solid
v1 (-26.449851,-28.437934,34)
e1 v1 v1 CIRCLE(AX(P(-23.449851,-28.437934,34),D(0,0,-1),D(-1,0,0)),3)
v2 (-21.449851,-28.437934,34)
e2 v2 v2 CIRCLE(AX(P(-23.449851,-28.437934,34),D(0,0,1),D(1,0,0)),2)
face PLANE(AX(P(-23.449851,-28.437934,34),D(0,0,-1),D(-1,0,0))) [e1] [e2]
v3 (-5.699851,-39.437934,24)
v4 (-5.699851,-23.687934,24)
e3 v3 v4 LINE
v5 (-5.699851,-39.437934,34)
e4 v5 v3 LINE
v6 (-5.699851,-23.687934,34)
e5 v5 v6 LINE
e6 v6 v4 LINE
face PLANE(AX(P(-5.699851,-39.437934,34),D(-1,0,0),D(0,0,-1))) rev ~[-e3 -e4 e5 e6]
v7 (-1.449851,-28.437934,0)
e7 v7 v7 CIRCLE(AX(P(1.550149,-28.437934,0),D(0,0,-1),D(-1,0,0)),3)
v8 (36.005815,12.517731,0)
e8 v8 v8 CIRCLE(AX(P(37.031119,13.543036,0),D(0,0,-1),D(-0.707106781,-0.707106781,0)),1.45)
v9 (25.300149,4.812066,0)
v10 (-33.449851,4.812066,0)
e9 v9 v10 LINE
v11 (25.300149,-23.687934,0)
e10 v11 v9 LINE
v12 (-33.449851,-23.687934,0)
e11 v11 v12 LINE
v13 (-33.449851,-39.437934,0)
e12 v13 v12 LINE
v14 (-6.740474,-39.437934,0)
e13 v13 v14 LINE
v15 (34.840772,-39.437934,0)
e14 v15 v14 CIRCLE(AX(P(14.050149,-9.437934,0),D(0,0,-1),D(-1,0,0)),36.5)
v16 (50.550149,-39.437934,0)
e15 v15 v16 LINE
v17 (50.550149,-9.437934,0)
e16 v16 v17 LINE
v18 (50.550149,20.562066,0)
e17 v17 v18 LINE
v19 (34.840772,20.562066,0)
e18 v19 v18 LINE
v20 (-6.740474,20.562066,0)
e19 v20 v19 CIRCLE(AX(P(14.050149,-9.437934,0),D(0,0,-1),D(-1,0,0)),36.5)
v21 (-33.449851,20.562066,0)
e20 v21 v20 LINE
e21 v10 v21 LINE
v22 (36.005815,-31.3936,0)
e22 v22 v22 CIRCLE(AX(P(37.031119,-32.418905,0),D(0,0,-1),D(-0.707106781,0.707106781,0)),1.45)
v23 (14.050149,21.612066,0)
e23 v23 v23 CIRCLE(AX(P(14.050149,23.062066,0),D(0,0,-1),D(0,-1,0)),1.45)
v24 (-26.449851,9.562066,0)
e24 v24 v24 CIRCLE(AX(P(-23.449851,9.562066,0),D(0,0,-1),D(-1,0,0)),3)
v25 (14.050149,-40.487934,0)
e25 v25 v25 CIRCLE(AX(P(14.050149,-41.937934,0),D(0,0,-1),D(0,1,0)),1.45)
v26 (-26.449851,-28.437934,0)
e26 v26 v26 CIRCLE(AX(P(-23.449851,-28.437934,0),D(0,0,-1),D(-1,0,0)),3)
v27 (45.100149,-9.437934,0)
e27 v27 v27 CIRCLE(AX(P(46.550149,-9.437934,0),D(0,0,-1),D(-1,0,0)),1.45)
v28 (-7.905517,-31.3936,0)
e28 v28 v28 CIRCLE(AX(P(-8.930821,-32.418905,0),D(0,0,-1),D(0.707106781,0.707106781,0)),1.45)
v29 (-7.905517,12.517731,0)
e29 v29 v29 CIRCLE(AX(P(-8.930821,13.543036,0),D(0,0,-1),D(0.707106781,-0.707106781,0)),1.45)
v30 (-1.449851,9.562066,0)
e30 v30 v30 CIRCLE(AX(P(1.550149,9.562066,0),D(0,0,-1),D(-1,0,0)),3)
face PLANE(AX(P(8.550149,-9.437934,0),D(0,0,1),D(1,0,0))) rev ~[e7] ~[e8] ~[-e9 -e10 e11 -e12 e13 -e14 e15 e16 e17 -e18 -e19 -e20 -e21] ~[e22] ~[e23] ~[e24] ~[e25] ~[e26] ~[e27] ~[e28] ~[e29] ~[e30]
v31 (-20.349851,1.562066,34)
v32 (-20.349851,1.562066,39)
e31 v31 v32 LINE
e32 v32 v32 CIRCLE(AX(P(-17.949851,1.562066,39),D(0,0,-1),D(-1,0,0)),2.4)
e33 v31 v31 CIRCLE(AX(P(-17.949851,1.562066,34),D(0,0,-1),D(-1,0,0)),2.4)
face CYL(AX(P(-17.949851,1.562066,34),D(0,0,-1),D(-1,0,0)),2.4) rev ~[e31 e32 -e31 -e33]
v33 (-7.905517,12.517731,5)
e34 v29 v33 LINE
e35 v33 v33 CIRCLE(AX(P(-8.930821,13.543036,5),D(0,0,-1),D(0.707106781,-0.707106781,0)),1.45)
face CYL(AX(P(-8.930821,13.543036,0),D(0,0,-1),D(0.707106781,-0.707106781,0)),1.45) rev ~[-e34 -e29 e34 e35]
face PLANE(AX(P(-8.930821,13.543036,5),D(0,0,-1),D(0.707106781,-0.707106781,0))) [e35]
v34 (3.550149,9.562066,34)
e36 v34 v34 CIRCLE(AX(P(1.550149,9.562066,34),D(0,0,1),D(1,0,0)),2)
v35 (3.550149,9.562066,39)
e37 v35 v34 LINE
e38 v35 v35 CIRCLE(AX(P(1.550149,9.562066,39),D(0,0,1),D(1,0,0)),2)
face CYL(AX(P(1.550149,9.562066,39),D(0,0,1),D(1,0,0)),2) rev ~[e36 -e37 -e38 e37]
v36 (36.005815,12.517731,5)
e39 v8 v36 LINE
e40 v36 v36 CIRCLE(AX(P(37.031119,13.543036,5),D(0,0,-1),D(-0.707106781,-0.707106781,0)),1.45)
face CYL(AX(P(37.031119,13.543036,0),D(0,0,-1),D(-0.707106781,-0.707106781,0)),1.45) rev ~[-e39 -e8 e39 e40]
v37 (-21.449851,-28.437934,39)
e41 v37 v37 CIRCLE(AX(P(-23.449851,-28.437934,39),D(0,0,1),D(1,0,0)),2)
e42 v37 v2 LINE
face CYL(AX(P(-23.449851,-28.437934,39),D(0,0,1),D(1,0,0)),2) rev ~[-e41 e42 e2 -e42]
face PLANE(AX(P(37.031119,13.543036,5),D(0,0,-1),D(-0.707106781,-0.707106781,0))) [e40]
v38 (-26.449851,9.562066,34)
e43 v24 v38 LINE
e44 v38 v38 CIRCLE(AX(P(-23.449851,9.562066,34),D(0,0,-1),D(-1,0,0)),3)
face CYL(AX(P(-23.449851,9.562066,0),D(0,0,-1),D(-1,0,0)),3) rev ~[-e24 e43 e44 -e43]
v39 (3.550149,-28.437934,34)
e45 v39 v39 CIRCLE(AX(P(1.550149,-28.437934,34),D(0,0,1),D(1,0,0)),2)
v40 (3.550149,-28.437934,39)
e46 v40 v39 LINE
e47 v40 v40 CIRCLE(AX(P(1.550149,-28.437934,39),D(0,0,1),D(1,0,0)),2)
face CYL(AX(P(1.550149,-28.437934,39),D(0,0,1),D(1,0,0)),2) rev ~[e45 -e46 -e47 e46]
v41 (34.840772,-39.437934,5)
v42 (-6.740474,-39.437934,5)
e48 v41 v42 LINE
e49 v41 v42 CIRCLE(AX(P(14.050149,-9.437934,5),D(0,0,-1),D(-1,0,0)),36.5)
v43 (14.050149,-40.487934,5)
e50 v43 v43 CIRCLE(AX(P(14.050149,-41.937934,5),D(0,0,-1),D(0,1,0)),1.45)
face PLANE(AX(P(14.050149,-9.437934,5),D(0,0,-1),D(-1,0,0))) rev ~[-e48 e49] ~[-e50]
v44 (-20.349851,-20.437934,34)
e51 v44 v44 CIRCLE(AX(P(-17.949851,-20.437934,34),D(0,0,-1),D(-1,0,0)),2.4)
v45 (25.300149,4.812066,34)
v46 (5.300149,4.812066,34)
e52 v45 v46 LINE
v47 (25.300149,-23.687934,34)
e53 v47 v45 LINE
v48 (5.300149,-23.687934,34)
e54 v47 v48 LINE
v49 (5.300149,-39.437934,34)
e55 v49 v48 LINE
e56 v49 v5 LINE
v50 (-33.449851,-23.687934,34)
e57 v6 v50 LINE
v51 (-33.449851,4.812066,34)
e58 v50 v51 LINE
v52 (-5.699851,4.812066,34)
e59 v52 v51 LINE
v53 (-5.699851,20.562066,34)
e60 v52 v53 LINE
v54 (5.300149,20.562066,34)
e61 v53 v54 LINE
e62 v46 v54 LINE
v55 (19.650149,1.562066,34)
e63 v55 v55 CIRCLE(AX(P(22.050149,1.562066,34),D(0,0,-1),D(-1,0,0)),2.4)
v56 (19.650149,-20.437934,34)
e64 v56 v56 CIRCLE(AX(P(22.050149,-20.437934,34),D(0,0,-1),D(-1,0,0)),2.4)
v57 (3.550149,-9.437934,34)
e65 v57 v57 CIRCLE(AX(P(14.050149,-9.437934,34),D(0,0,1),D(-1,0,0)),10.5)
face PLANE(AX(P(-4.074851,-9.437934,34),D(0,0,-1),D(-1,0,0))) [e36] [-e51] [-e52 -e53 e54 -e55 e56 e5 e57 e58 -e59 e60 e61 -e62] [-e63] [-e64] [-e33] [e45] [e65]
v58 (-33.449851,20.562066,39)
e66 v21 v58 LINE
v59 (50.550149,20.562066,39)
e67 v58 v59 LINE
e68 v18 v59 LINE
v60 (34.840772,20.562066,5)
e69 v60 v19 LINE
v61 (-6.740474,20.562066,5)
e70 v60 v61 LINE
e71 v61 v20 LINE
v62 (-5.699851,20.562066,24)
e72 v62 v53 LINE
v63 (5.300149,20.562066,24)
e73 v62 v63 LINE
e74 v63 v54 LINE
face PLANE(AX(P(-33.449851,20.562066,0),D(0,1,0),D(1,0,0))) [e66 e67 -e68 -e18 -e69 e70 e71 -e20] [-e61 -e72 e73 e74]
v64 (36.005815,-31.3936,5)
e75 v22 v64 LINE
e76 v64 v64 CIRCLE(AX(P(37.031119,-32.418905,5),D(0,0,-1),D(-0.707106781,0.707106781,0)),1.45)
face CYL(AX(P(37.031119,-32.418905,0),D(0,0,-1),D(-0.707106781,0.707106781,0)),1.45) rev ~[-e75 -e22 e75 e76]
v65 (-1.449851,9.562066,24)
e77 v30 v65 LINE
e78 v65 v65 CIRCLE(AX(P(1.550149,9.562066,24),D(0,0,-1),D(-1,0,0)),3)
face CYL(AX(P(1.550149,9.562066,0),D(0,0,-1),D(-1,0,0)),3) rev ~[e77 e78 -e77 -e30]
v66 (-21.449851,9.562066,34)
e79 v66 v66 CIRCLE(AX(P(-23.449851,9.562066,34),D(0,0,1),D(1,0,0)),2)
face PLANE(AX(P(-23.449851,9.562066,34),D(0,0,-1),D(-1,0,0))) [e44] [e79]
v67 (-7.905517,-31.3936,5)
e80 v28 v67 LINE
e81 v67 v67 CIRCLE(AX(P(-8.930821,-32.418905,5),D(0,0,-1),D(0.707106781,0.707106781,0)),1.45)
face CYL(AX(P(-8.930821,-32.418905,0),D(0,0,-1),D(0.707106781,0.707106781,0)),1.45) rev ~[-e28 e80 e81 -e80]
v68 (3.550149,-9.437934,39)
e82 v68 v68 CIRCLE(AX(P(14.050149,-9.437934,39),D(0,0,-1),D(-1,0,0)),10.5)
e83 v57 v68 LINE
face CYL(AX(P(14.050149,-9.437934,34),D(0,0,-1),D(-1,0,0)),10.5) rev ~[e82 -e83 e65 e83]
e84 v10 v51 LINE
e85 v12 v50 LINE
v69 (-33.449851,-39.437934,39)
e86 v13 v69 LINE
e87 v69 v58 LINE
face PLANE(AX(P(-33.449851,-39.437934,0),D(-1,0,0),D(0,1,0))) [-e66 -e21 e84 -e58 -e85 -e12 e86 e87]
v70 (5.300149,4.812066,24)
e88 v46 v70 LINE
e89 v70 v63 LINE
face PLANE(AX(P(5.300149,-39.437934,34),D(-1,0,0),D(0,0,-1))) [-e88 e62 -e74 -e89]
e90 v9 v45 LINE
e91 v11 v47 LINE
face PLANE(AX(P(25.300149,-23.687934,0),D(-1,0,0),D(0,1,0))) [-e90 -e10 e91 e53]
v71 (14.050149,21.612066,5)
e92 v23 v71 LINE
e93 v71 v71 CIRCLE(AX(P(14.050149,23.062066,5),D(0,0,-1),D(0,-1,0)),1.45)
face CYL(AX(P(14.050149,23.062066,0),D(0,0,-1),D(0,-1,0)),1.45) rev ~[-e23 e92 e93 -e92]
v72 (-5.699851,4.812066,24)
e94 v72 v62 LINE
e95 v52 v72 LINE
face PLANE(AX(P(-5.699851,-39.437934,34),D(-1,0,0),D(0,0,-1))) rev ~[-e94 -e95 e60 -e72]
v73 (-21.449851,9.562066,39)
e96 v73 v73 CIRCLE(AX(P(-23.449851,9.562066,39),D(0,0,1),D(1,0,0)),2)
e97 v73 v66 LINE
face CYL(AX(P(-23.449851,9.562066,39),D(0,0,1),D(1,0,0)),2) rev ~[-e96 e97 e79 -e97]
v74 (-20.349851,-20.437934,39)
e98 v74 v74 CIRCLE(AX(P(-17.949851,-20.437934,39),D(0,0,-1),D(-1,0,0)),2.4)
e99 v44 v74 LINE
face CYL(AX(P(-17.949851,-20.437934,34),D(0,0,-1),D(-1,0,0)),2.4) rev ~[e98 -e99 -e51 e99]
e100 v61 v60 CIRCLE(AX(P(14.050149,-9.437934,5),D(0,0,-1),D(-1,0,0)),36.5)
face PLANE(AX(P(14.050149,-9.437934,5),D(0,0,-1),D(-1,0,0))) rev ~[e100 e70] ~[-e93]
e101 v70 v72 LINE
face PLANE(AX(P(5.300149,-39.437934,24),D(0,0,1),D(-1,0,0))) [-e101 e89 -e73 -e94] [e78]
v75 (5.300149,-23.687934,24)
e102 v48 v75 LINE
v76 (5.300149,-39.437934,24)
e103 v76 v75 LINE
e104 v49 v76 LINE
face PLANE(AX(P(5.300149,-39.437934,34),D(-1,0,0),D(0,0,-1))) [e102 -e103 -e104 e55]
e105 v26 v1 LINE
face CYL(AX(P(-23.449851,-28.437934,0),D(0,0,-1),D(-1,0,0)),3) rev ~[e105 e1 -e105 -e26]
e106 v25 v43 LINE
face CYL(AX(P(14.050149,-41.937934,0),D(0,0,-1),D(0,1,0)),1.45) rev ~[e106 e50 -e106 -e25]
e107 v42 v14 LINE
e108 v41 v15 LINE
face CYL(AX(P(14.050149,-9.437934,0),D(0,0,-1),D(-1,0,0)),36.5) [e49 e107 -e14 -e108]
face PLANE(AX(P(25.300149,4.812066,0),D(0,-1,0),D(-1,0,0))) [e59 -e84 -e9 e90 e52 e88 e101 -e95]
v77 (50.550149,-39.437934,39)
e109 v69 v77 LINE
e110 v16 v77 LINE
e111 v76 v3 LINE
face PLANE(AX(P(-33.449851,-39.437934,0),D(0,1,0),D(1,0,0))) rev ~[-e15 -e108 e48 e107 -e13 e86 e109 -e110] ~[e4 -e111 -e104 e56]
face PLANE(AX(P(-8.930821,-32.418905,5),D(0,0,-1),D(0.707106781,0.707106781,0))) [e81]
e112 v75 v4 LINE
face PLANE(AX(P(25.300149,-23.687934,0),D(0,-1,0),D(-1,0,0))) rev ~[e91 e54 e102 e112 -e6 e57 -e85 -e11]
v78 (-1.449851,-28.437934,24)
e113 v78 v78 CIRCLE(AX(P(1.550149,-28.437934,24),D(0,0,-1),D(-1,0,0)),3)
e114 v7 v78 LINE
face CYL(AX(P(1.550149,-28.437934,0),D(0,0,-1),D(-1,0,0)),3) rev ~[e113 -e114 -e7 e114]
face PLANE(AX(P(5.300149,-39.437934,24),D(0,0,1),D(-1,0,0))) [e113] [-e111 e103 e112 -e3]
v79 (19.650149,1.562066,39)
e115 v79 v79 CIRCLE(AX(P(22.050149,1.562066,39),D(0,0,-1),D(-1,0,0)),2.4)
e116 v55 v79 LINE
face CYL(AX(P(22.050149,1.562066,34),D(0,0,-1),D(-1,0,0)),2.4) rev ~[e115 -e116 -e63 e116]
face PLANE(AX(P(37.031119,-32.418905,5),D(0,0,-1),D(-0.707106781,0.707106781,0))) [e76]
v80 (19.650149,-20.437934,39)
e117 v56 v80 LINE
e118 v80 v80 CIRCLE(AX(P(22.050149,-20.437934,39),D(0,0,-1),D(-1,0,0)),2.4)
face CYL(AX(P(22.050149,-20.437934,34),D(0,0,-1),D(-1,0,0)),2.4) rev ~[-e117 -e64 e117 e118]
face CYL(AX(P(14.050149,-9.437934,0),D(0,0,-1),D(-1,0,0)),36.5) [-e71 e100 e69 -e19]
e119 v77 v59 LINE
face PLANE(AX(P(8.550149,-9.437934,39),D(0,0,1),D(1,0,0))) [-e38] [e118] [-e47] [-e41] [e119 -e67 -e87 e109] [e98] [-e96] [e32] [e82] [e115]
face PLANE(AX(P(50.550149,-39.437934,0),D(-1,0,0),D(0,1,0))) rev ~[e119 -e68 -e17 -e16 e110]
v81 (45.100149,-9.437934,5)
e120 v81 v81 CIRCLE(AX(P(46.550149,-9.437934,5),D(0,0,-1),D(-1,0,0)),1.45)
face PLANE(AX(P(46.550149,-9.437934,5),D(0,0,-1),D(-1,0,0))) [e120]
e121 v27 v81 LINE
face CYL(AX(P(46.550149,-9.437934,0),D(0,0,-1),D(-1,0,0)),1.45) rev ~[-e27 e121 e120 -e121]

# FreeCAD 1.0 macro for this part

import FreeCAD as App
import Part
import Sketcher
Q = App.Units.Quantity


def add_polygon(sketch, points):
    """Adds a closed chain of lines whose ends are joined by coincident constraints."""
    first, n = sketch.GeometryCount, len(points)
    for a, b in zip(points, points[1:] + points[:1]):
        sketch.addGeometry(Part.LineSegment(App.Vector(*a, 0), App.Vector(*b, 0)), False)
    for i in range(n):
        sketch.addConstraint(Sketcher.Constraint("Coincident", first + i, 2, first + (i + 1) % n, 1))

doc = App.newDocument("Part")
params = doc.addObject("Spreadsheet::Sheet", "Params")
for row, (alias, value) in enumerate([
    ("sketch1_width", "84 mm"),
    ("sketch1_height", "60 mm"),
    ("pad1_length", "39 mm"),
    ("sketch2_diameter", "73 mm"),
    ("pad2_length", "5 mm"),
    ("sketch3_diameter", "2.9 mm"),
    ("pocket1_length", "5 mm"),
    ("sketch4_height", "28.5 mm"),
    ("sketch4_width", "58.75 mm"),
    ("pocket2_length", "34 mm"),
    ("sketch5_diameter", "21 mm"),
    ("sketch5_diameter2", "4.8 mm"),
    ("pocket3_length", "5 mm"),
    ("sketch6_diameter", "4 mm"),
    ("pocket4_length", "40 mm"),
    ("sketch7_diameter", "6 mm"),
    ("pocket5_length", "34 mm"),
    ("sketch8_width", "11 mm"),
    ("sketch8_height", "10 mm"),
    ("pocket6_length", "100 mm"),
], start=1):
    params.set(f"A{row}", alias)
    params.set(f"B{row}", "=" + value)
    params.setAlias(f"B{row}", alias)

body = doc.addObject("PartDesign::Body", "Body")

sketch1 = body.newObject("Sketcher::SketchObject", "Sketch")
sketch1.AttachmentSupport = (doc.getObject("XY_Plane"), [""])
sketch1.MapMode = "FlatFace"
add_polygon(sketch1, [(-33, 21), (-33, -39), (51, -39), (51, 21)])
sketch1.addConstraint(Sketcher.Constraint("Vertical", 0))
sketch1.addConstraint(Sketcher.Constraint("Horizontal", 1))
sketch1.addConstraint(Sketcher.Constraint("Vertical", 2))
sketch1.addConstraint(Sketcher.Constraint("Horizontal", 3))
sketch1.addConstraint(Sketcher.Constraint("DistanceX", 1, 1, 1, 2, Q("84 mm")))
sketch1.addConstraint(Sketcher.Constraint("DistanceY", 0, 2, 0, 1, Q("60 mm")))
sketch1.addConstraint(Sketcher.Constraint("DistanceX", 0, 2, -1, 1, Q("33.449851 mm")))
sketch1.addConstraint(Sketcher.Constraint("DistanceY", 0, 2, -1, 1, Q("39.437934 mm")))
sketch1.setExpression("Constraints[8]", "Params.sketch1_width")
sketch1.setExpression("Constraints[9]", "Params.sketch1_height")
pad1 = body.newObject("PartDesign::Pad", "Pad")
pad1.Profile = sketch1
pad1.setExpression("Length", "Params.pad1_length")

sketch2 = body.newObject("Sketcher::SketchObject", "Sketch001")
sketch2.AttachmentSupport = (doc.getObject("XY_Plane"), [""])
sketch2.MapMode = "FlatFace"
sketch2.addGeometry(Part.Circle(App.Vector(14, -9, 0), App.Vector(0, 0, 1), 36), False)
sketch2.addConstraint(Sketcher.Constraint("Diameter", 0, Q("73 mm")))
sketch2.addConstraint(Sketcher.Constraint("DistanceX", -1, 1, 0, 3, Q("14.050149 mm")))
sketch2.addConstraint(Sketcher.Constraint("DistanceY", 0, 3, -1, 1, Q("9.437934 mm")))
sketch2.setExpression("Constraints[0]", "Params.sketch2_diameter")
pad2 = body.newObject("PartDesign::Pad", "Pad001")
pad2.Profile = sketch2
pad2.setExpression("Length", "Params.pad2_length")

sketch3 = body.newObject("Sketcher::SketchObject", "Sketch002")
sketch3.AttachmentSupport = (doc.getObject("XY_Plane"), [""])
sketch3.MapMode = "FlatFace"
sketch3.addGeometry(Part.Circle(App.Vector(46.6, -9.4, 0), App.Vector(0, 0, 1), 1.4), False)
sketch3.addConstraint(Sketcher.Constraint("Diameter", 0, Q("2.9 mm")))
sketch3.addConstraint(Sketcher.Constraint("DistanceX", -1, 1, 0, 3, Q("46.550149 mm")))
sketch3.addConstraint(Sketcher.Constraint("DistanceY", 0, 3, -1, 1, Q("9.437934 mm")))
sketch3.setExpression("Constraints[0]", "Params.sketch3_diameter")
pocket1 = body.newObject("PartDesign::Pocket", "Pocket")
pocket1.Profile = sketch3
pocket1.setExpression("Length", "Params.pocket1_length")
pocket1.Reversed = True
doc.recompute()

datumline = body.newObject("PartDesign::Line", "DatumLine")
datumline.Placement = App.Placement(App.Vector(14.050149, -9.437934, 0), App.Rotation(App.Vector(0, 0, 1), App.Vector(0, 0, 1)))
polarpattern = body.newObject("PartDesign::PolarPattern", "PolarPattern")
polarpattern.Originals = [pocket1]
polarpattern.Axis = (datumline, [""])
polarpattern.Angle = 360
polarpattern.Occurrences = 8
body.Tip = polarpattern

sketch4 = body.newObject("Sketcher::SketchObject", "Sketch003")
sketch4.AttachmentSupport = (doc.getObject("XY_Plane"), [""])
sketch4.MapMode = "FlatFace"
add_polygon(sketch4, [(25, 5), (25, -24), (-33, -24), (-33, 5)])
sketch4.addConstraint(Sketcher.Constraint("Vertical", 0))
sketch4.addConstraint(Sketcher.Constraint("Horizontal", 1))
sketch4.addConstraint(Sketcher.Constraint("Vertical", 2))
sketch4.addConstraint(Sketcher.Constraint("Horizontal", 3))
sketch4.addConstraint(Sketcher.Constraint("DistanceY", 0, 2, 0, 1, Q("28.5 mm")))
sketch4.addConstraint(Sketcher.Constraint("DistanceX", 1, 2, 1, 1, Q("58.75 mm")))
sketch4.addConstraint(Sketcher.Constraint("DistanceX", -1, 1, 0, 2, Q("25.300149 mm")))
sketch4.addConstraint(Sketcher.Constraint("DistanceY", 0, 2, -1, 1, Q("23.687934 mm")))
sketch4.setExpression("Constraints[8]", "Params.sketch4_height")
sketch4.setExpression("Constraints[9]", "Params.sketch4_width")
pocket2 = body.newObject("PartDesign::Pocket", "Pocket001")
pocket2.Profile = sketch4
pocket2.setExpression("Length", "Params.pocket2_length")
pocket2.Reversed = True

sketch5 = body.newObject("Sketcher::SketchObject", "Sketch004")
sketch5.AttachmentSupport = (doc.getObject("XY_Plane"), [""])
sketch5.MapMode = "FlatFace"
sketch5.AttachmentOffset = App.Placement(App.Vector(0, 0, 34), App.Rotation())
sketch5.addGeometry(Part.Circle(App.Vector(14.1, -9.4, 0), App.Vector(0, 0, 1), 10.5), False)
sketch5.addGeometry(Part.Circle(App.Vector(22.1, 1.6, 0), App.Vector(0, 0, 1), 2.4), False)
sketch5.addGeometry(Part.Circle(App.Vector(22.1, -20.4, 0), App.Vector(0, 0, 1), 2.4), False)
sketch5.addGeometry(Part.Circle(App.Vector(-17.9, -20.4, 0), App.Vector(0, 0, 1), 2.4), False)
sketch5.addGeometry(Part.Circle(App.Vector(-17.9, 1.6, 0), App.Vector(0, 0, 1), 2.4), False)
sketch5.addConstraint(Sketcher.Constraint("Equal", 1, 2))
sketch5.addConstraint(Sketcher.Constraint("Equal", 2, 3))
sketch5.addConstraint(Sketcher.Constraint("Equal", 3, 4))
sketch5.addConstraint(Sketcher.Constraint("Horizontal", 2, 3, 3, 3))
sketch5.addConstraint(Sketcher.Constraint("Horizontal", 1, 3, 4, 3))
sketch5.addConstraint(Sketcher.Constraint("Vertical", 1, 3, 2, 3))
sketch5.addConstraint(Sketcher.Constraint("Vertical", 3, 3, 4, 3))
sketch5.addConstraint(Sketcher.Constraint("Diameter", 0, Q("21 mm")))
sketch5.addConstraint(Sketcher.Constraint("Diameter", 1, Q("4.8 mm")))
sketch5.addConstraint(Sketcher.Constraint("DistanceX", 0, 3, 1, 3, Q("8 mm")))
sketch5.addConstraint(Sketcher.Constraint("DistanceY", 0, 3, 1, 3, Q("11 mm")))
sketch5.addConstraint(Sketcher.Constraint("DistanceY", 2, 3, 0, 3, Q("11 mm")))
sketch5.addConstraint(Sketcher.Constraint("DistanceX", 3, 3, 0, 3, Q("32 mm")))
sketch5.addConstraint(Sketcher.Constraint("DistanceX", -1, 1, 0, 3, Q("14.050149 mm")))
sketch5.addConstraint(Sketcher.Constraint("DistanceY", 0, 3, -1, 1, Q("9.437934 mm")))
sketch5.setExpression("Constraints[7]", "Params.sketch5_diameter")
sketch5.setExpression("Constraints[8]", "Params.sketch5_diameter2")
pocket3 = body.newObject("PartDesign::Pocket", "Pocket002")
pocket3.Profile = sketch5
pocket3.setExpression("Length", "Params.pocket3_length")
pocket3.Reversed = True

sketch6 = body.newObject("Sketcher::SketchObject", "Sketch005")
sketch6.AttachmentSupport = (doc.getObject("XY_Plane"), [""])
sketch6.MapMode = "FlatFace"
sketch6.AttachmentOffset = App.Placement(App.Vector(0, 0, 39), App.Rotation())
sketch6.addGeometry(Part.Circle(App.Vector(-23.4, 9.6, 0), App.Vector(0, 0, 1), 2), False)
sketch6.addGeometry(Part.Circle(App.Vector(-23.4, -28.4, 0), App.Vector(0, 0, 1), 2), False)
sketch6.addGeometry(Part.Circle(App.Vector(1.6, 9.6, 0), App.Vector(0, 0, 1), 2), False)
sketch6.addGeometry(Part.Circle(App.Vector(1.6, -28.4, 0), App.Vector(0, 0, 1), 2), False)
sketch6.addConstraint(Sketcher.Constraint("Equal", 0, 1))
sketch6.addConstraint(Sketcher.Constraint("Equal", 1, 2))
sketch6.addConstraint(Sketcher.Constraint("Equal", 2, 3))
sketch6.addConstraint(Sketcher.Constraint("Horizontal", 0, 3, 2, 3))
sketch6.addConstraint(Sketcher.Constraint("Horizontal", 1, 3, 3, 3))
sketch6.addConstraint(Sketcher.Constraint("Vertical", 0, 3, 1, 3))
sketch6.addConstraint(Sketcher.Constraint("Vertical", 2, 3, 3, 3))
sketch6.addConstraint(Sketcher.Constraint("Diameter", 0, Q("4 mm")))
sketch6.addConstraint(Sketcher.Constraint("DistanceY", 1, 3, 0, 3, Q("38 mm")))
sketch6.addConstraint(Sketcher.Constraint("DistanceX", 0, 3, 2, 3, Q("25 mm")))
sketch6.addConstraint(Sketcher.Constraint("DistanceX", 0, 3, -1, 1, Q("23.449851 mm")))
sketch6.addConstraint(Sketcher.Constraint("DistanceY", -1, 1, 0, 3, Q("9.562066 mm")))
sketch6.setExpression("Constraints[7]", "Params.sketch6_diameter")
pocket4 = body.newObject("PartDesign::Pocket", "Pocket003")
pocket4.Profile = sketch6
pocket4.setExpression("Length", "Params.pocket4_length")

sketch7 = body.newObject("Sketcher::SketchObject", "Sketch006")
sketch7.AttachmentSupport = (doc.getObject("XY_Plane"), [""])
sketch7.MapMode = "FlatFace"
sketch7.addGeometry(Part.Circle(App.Vector(1.6, 9.6, 0), App.Vector(0, 0, 1), 3), False)
sketch7.addGeometry(Part.Circle(App.Vector(-23.4, 9.6, 0), App.Vector(0, 0, 1), 3), False)
sketch7.addGeometry(Part.Circle(App.Vector(1.6, -28.4, 0), App.Vector(0, 0, 1), 3), False)
sketch7.addGeometry(Part.Circle(App.Vector(-23.4, -28.4, 0), App.Vector(0, 0, 1), 3), False)
sketch7.addConstraint(Sketcher.Constraint("Equal", 0, 1))
sketch7.addConstraint(Sketcher.Constraint("Equal", 1, 2))
sketch7.addConstraint(Sketcher.Constraint("Equal", 2, 3))
sketch7.addConstraint(Sketcher.Constraint("Horizontal", 0, 3, 1, 3))
sketch7.addConstraint(Sketcher.Constraint("Horizontal", 2, 3, 3, 3))
sketch7.addConstraint(Sketcher.Constraint("Vertical", 0, 3, 2, 3))
sketch7.addConstraint(Sketcher.Constraint("Vertical", 1, 3, 3, 3))
sketch7.addConstraint(Sketcher.Constraint("Diameter", 0, Q("6 mm")))
sketch7.addConstraint(Sketcher.Constraint("DistanceX", 1, 3, 0, 3, Q("25 mm")))
sketch7.addConstraint(Sketcher.Constraint("DistanceY", 2, 3, 0, 3, Q("38 mm")))
sketch7.addConstraint(Sketcher.Constraint("DistanceX", -1, 1, 0, 3, Q("1.550149 mm")))
sketch7.addConstraint(Sketcher.Constraint("DistanceY", -1, 1, 0, 3, Q("9.562066 mm")))
sketch7.setExpression("Constraints[7]", "Params.sketch7_diameter")
pocket5 = body.newObject("PartDesign::Pocket", "Pocket004")
pocket5.Profile = sketch7
pocket5.setExpression("Length", "Params.pocket5_length")
pocket5.Reversed = True

sketch8 = body.newObject("Sketcher::SketchObject", "Sketch007")
sketch8.AttachmentSupport = (doc.getObject("XZ_Plane"), [""])
sketch8.MapMode = "FlatFace"
sketch8.AttachmentOffset = App.Placement(App.Vector(0, 0, 39.437934), App.Rotation())
add_polygon(sketch8, [(5, 24), (5, 34), (-6, 34), (-6, 24)])
sketch8.addConstraint(Sketcher.Constraint("Vertical", 0))
sketch8.addConstraint(Sketcher.Constraint("Horizontal", 1))
sketch8.addConstraint(Sketcher.Constraint("Vertical", 2))
sketch8.addConstraint(Sketcher.Constraint("Horizontal", 3))
sketch8.addConstraint(Sketcher.Constraint("DistanceX", 1, 2, 1, 1, Q("11 mm")))
sketch8.addConstraint(Sketcher.Constraint("DistanceY", 0, 1, 0, 2, Q("10 mm")))
sketch8.addConstraint(Sketcher.Constraint("DistanceY", -1, 1, 0, 2, Q("34 mm")))
sketch8.addConstraint(Sketcher.Constraint("DistanceX", -1, 1, 0, 2, Q("5.300149 mm")))
sketch8.setExpression("Constraints[8]", "Params.sketch8_width")
sketch8.setExpression("Constraints[9]", "Params.sketch8_height")
pocket6 = body.newObject("PartDesign::Pocket", "Pocket005")
pocket6.Profile = sketch8
pocket6.setExpression("Length", "Params.pocket6_length")

doc.recompute()
